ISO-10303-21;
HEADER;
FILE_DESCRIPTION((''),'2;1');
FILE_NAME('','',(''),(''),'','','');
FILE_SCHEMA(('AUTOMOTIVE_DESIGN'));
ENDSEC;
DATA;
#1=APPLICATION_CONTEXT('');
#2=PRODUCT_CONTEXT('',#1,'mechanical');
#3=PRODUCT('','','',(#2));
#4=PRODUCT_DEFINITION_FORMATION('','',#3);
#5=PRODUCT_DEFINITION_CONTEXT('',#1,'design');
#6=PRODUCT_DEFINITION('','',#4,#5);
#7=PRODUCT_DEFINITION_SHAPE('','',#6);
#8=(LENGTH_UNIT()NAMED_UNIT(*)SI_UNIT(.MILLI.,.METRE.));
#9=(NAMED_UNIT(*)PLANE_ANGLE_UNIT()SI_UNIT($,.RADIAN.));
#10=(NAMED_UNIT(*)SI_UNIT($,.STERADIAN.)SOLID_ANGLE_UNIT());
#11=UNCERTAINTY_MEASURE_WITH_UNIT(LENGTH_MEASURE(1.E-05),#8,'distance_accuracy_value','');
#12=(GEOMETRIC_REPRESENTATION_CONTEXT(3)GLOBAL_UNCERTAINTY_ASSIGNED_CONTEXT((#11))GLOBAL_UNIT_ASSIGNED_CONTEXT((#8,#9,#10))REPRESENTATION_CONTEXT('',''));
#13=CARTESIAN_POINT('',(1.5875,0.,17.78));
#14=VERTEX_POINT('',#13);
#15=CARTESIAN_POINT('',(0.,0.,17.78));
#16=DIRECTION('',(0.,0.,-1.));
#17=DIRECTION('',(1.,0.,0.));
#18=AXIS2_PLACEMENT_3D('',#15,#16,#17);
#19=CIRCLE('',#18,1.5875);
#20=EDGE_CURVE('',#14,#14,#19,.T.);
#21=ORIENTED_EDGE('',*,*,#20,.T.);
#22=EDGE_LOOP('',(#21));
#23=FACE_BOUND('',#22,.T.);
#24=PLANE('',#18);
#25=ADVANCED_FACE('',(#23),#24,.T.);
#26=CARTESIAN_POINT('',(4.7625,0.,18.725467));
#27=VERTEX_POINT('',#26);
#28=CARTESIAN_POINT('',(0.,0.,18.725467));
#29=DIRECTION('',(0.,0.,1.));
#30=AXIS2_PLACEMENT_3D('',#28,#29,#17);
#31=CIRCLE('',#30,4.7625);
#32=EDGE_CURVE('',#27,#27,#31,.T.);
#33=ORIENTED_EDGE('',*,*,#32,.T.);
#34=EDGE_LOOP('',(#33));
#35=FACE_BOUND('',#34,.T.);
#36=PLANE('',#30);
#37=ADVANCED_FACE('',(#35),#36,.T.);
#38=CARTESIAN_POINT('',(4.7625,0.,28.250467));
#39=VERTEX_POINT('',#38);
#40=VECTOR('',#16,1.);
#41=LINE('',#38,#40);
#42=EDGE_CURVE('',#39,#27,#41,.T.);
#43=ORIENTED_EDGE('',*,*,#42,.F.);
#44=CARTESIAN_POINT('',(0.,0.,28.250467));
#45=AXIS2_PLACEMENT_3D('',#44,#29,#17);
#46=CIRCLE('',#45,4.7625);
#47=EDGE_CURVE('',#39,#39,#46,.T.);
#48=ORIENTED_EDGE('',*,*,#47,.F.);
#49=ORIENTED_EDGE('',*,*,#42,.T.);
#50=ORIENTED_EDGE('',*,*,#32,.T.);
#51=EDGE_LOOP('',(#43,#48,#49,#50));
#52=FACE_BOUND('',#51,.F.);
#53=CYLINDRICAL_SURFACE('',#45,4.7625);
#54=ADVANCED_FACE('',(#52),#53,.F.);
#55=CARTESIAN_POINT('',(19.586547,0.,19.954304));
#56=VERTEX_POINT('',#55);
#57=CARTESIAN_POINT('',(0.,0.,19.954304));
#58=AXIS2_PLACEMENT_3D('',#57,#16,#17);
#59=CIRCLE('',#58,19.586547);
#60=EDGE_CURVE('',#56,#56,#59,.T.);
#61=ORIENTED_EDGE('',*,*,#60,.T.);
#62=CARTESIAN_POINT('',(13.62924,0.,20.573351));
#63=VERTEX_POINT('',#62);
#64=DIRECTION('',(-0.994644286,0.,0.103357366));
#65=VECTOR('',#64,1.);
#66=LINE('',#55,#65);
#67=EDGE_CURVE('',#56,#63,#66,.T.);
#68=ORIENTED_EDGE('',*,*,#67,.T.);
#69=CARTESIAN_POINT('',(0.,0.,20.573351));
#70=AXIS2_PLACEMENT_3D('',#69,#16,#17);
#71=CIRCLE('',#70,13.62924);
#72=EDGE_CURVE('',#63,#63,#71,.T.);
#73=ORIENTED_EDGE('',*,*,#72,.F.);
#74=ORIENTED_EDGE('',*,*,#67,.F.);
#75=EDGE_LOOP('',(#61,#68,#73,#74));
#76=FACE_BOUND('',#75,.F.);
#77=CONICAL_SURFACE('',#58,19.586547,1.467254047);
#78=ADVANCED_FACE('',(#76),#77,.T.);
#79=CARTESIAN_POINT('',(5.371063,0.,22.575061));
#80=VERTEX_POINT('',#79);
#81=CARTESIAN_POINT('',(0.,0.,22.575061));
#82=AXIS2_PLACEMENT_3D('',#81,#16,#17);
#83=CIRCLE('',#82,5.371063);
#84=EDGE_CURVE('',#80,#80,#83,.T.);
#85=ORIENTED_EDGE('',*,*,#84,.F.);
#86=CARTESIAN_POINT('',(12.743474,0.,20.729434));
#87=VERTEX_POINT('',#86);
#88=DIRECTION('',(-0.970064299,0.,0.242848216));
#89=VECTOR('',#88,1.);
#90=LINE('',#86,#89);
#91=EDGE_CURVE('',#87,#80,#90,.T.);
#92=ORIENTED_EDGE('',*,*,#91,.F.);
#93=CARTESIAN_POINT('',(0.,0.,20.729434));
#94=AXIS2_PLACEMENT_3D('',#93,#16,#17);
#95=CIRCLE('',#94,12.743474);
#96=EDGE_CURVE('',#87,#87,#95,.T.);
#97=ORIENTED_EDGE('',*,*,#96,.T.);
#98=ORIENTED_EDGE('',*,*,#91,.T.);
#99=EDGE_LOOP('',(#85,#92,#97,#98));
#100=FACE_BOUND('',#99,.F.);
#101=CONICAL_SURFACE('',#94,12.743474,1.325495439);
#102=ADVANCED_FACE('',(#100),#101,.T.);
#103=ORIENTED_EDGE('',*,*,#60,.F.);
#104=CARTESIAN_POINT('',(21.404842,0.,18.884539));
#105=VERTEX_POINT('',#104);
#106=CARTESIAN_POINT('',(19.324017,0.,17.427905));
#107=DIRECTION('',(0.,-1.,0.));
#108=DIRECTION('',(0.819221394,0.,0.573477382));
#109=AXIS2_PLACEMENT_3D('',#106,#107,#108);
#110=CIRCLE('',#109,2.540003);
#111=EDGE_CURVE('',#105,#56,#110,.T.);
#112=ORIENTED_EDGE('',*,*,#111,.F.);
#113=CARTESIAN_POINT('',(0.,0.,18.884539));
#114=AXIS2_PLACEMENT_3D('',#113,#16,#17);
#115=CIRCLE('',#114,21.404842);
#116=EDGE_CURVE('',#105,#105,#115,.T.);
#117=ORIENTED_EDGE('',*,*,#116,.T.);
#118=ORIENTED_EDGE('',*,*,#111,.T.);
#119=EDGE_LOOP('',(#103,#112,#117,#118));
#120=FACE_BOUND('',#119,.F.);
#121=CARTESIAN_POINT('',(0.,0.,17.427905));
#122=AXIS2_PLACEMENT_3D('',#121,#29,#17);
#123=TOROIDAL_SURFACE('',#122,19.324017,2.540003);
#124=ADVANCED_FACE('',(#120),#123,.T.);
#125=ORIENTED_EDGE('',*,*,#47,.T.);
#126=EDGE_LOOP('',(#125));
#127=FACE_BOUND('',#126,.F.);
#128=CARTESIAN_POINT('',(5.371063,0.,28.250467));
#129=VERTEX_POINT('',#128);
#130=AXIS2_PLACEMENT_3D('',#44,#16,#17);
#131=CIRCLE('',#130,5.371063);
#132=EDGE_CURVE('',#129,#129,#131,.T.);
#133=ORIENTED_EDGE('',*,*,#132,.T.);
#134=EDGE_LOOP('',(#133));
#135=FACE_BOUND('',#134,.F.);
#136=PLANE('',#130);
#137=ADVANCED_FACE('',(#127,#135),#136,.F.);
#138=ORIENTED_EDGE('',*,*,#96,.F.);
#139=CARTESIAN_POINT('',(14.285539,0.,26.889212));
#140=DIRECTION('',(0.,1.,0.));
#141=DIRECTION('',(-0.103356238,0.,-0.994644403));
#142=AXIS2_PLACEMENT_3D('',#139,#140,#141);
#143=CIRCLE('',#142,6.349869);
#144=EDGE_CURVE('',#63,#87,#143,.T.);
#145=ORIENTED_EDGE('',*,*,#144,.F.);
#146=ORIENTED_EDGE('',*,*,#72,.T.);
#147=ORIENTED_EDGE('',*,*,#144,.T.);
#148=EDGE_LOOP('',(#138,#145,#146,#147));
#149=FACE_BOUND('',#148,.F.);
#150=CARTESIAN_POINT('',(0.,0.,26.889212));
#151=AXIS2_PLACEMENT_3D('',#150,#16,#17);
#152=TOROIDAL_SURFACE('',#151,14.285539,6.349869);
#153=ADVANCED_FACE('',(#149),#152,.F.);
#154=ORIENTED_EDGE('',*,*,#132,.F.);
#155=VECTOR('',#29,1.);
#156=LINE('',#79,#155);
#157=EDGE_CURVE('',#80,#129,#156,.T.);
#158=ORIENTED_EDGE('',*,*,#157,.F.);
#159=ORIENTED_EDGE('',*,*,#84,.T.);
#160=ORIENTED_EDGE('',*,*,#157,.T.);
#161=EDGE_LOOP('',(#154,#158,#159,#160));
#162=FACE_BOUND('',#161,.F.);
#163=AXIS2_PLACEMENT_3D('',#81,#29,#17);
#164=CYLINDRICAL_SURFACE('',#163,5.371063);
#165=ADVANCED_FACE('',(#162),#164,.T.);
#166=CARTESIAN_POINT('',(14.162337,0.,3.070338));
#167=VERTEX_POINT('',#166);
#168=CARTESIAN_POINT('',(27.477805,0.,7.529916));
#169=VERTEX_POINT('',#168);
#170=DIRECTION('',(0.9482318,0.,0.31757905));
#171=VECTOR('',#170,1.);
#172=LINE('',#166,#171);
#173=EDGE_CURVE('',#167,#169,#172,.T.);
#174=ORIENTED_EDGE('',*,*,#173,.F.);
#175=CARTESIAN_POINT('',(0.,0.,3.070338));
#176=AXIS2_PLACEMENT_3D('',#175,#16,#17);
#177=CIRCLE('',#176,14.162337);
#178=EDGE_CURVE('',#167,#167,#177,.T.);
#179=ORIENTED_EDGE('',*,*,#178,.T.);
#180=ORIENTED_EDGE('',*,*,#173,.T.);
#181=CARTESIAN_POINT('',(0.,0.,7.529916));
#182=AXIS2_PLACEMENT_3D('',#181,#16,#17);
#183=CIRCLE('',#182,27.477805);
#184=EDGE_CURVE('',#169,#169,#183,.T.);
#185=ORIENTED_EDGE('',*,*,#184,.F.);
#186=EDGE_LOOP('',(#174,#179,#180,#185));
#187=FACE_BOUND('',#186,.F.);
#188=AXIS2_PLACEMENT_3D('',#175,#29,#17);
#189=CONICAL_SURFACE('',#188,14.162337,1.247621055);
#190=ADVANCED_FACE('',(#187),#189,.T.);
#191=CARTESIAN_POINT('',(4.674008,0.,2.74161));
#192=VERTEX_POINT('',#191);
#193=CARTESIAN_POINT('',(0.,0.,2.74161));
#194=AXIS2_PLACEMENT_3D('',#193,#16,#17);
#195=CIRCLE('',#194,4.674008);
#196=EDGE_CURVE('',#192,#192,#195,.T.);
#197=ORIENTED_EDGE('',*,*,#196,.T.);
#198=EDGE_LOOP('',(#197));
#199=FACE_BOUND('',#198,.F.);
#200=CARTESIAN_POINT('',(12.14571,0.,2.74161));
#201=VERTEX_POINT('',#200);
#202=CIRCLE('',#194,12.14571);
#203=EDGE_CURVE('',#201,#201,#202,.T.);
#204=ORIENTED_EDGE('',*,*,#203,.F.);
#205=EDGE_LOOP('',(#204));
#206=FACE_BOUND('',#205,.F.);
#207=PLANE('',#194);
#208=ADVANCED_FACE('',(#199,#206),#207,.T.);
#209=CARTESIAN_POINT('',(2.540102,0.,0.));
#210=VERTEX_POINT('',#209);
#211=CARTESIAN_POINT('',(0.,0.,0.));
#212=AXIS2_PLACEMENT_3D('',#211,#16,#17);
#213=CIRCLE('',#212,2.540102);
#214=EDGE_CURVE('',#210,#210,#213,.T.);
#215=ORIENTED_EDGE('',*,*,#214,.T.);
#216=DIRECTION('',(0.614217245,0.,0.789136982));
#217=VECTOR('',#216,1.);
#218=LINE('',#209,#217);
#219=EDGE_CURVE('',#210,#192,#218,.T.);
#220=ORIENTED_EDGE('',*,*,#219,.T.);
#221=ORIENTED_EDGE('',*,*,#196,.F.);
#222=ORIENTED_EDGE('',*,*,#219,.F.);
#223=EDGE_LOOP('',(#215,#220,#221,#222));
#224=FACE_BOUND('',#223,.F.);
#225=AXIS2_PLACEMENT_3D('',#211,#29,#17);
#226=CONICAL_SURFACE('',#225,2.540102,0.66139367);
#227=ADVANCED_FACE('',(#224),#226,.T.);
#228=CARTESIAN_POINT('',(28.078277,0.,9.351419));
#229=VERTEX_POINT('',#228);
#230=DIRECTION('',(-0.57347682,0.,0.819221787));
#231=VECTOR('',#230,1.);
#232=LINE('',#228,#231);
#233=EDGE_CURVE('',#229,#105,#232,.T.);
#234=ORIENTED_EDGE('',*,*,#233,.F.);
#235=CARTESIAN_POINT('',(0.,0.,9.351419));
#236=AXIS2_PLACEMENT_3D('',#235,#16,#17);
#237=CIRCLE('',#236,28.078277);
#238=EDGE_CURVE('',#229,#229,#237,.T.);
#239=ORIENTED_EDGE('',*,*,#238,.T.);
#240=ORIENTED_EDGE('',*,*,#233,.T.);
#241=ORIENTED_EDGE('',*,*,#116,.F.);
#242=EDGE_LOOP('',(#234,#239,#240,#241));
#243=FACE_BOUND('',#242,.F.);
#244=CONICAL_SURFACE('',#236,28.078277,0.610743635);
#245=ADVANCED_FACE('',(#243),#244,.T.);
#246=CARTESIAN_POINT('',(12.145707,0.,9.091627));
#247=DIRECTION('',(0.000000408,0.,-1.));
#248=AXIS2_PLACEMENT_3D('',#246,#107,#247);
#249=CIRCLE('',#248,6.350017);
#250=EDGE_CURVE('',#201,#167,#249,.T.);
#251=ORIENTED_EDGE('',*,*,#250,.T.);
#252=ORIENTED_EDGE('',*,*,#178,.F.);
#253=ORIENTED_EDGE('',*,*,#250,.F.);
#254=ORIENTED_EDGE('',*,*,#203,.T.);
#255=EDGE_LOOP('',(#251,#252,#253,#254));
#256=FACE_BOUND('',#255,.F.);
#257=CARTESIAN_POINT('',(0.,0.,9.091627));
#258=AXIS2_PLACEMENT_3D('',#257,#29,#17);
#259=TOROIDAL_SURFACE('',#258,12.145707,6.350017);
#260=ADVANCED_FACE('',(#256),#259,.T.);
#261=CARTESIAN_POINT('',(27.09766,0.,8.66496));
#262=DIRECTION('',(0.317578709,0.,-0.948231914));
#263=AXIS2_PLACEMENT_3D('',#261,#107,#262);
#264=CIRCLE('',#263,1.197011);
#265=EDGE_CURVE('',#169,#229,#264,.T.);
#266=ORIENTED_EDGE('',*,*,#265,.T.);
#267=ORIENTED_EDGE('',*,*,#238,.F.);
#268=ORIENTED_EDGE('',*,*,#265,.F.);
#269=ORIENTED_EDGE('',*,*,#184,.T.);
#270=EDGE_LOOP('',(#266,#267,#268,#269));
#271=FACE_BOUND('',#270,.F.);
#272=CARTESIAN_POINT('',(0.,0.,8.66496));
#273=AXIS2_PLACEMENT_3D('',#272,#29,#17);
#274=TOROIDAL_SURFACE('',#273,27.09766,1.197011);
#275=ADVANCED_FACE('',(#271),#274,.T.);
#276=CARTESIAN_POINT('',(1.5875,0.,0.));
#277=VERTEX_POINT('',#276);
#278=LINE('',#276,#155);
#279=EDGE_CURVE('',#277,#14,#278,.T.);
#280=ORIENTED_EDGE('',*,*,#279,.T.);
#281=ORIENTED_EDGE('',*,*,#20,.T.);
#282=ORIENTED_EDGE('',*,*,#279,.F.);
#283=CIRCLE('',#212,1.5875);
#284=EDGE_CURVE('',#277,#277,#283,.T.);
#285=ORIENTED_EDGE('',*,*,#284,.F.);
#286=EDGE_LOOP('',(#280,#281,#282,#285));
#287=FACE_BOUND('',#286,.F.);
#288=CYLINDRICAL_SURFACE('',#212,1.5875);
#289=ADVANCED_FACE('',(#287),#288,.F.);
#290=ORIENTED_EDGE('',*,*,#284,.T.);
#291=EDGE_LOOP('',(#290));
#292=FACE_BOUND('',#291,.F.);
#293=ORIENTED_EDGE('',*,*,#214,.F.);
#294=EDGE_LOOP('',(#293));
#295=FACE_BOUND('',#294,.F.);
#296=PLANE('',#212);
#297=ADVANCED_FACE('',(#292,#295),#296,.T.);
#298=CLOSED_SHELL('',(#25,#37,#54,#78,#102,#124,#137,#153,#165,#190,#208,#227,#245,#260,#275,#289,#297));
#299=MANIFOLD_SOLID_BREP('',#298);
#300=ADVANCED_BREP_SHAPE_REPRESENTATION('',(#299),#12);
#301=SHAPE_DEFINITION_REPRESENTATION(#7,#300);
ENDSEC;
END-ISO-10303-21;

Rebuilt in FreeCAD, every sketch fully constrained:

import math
import FreeCAD as App
import Part
import Sketcher
Q = App.Units.Quantity

doc = App.newDocument("Part")
body = doc.addObject("PartDesign::Body", "Body")

# Sketch on XZ plane
sketch1 = doc.addObject("Sketcher::SketchObject", "Sketch")
body.addObject(sketch1)
sketch1.AttachmentSupport = (doc.XZ_Plane, [""])
sketch1.MapMode = "FlatFace"
sketch1.addGeometry([
    Part.LineSegment(App.Vector(12.7, 20.7, 0), App.Vector(5.4, 22.6, 0)),  # 0
    Part.LineSegment(App.Vector(5.4, 22.6, 0), App.Vector(5.4, 28.3, 0)),  # 1
    Part.LineSegment(App.Vector(5.4, 28.3, 0), App.Vector(0, 28.3, 0)),  # 2
    Part.LineSegment(App.Vector(0, 28.3, 0), App.Vector(0, 0, 0)),  # 3
    Part.LineSegment(App.Vector(0, 0, 0), App.Vector(2.5, 0, 0)),  # 4
    Part.LineSegment(App.Vector(2.5, 0, 0), App.Vector(4.7, 2.7, 0)),  # 5
    Part.LineSegment(App.Vector(4.7, 2.7, 0), App.Vector(12.1, 2.7, 0)),  # 6
    Part.ArcOfCircle(Part.Circle(App.Vector(12.1, 9.1, 0), App.Vector(0, 0, 1), 6.4), math.radians(-90), math.radians(-71.48)),  # 7
    Part.LineSegment(App.Vector(14.2, 3.1, 0), App.Vector(27.5, 7.5, 0)),  # 8
    Part.ArcOfCircle(Part.Circle(App.Vector(27.1, 8.7, 0), App.Vector(0, 0, 1), 1.2), math.radians(-71), math.radians(35)),  # 9
    Part.LineSegment(App.Vector(28.1, 9.4, 0), App.Vector(21.4, 18.9, 0)),  # 10
    Part.ArcOfCircle(Part.Circle(App.Vector(19.3, 17.4, 0), App.Vector(0, 0, 1), 2.5), math.radians(35), math.radians(84)),  # 11
    Part.LineSegment(App.Vector(19.6, 20, 0), App.Vector(13.6, 20.6, 0)),  # 12
    Part.ArcOfCircle(Part.Circle(App.Vector(14.3, 26.9, 0), App.Vector(0, 0, 1), 6.3), math.radians(-104.05), math.radians(-95.93)),  # 13
], False)
sketch1.addConstraint([
    Sketcher.Constraint("Coincident", 0, 2, 1, 1),
    Sketcher.Constraint("Coincident", 1, 2, 2, 1),
    Sketcher.Constraint("Coincident", 2, 2, 3, 1),
    Sketcher.Constraint("Coincident", 3, 2, 4, 1),
    Sketcher.Constraint("Coincident", 4, 2, 5, 1),
    Sketcher.Constraint("Coincident", 5, 2, 6, 1),
    Sketcher.Constraint("Tangent", 6, 2, 7, 1),
    Sketcher.Constraint("Tangent", 7, 2, 8, 1),
    Sketcher.Constraint("Tangent", 8, 2, 9, 1),
    Sketcher.Constraint("Tangent", 9, 2, 10, 1),
    Sketcher.Constraint("Tangent", 10, 2, 11, 1),
    Sketcher.Constraint("Tangent", 11, 2, 12, 1),
    Sketcher.Constraint("Tangent", 12, 2, 13, 2),
    Sketcher.Constraint("Tangent", 13, 1, 0, 1),
    Sketcher.Constraint("Vertical", 1),
    Sketcher.Constraint("Horizontal", 2),
    Sketcher.Constraint("Vertical", 3),
    Sketcher.Constraint("Horizontal", 4),
    Sketcher.Constraint("Horizontal", 6),
    Sketcher.Constraint("Coincident", 3, 2, -1, 1),
    Sketcher.Constraint("Radius", 11, Q("0.1000001 in")),
    Sketcher.Constraint("Radius", 9, Q("1.197011 mm")),
    Sketcher.Constraint("Radius", 13, Q("6.349869 mm")),
    Sketcher.Constraint("DistanceX", 6, 1, 6, 2, Q("7.471702 mm")),
    Sketcher.Constraint("Radius", 7, Q("6.350017 mm")),
    Sketcher.Constraint("DistanceY", 7, 3, 11, 3, Q("0.3281999 in")),
    Sketcher.Constraint("Distance", 10, Q("11.6368 mm")),
    Sketcher.Constraint("DistanceY", 9, 3, 0, 2, Q("13.910101 mm")),
    Sketcher.Constraint("DistanceY", 11, 3, 11, 2, Q("2.526399 mm")),
    Sketcher.Constraint("DistanceX", 12, 2, 10, 2, Q("7.775602 mm")),
    Sketcher.Constraint("Distance", 0, Q("7.59992 mm")),
    Sketcher.Constraint("Distance", 8, Q("14.042419 mm")),
    Sketcher.Constraint("DistanceX", 2, 2, 2, 1, Q("5.371063 mm")),
    Sketcher.Constraint("DistanceX", 4, 1, 4, 2, Q("2.540102 mm")),
    Sketcher.Constraint("DistanceY", 1, 1, 1, 2, Q("5.675406 mm")),
    Sketcher.Constraint("DistanceY", 3, 2, 3, 1, Q("28.250467 mm")),
    Sketcher.Constraint("DistanceX", -1, 1, 9, 3, Q("27.09766 mm")),
])
revolution = doc.addObject("PartDesign::Revolution", "Revolution")
body.addObject(revolution)
revolution.Profile = sketch1
revolution.ReferenceAxis = (sketch1, ["V_Axis"])
revolution.Angle = 360

# Sketch on XY plane
sketch2 = doc.addObject("Sketcher::SketchObject", "Sketch001")
body.addObject(sketch2)
sketch2.AttachmentSupport = (doc.XY_Plane, [""])
sketch2.MapMode = "FlatFace"
sketch2.AttachmentOffset = App.Placement(App.Vector(0, 0, 28.250467), App.Rotation())
sketch2.addGeometry(Part.Circle(App.Vector(0, 0, 0), App.Vector(0, 0, 1), 4.8), False)
sketch2.addConstraint([
    Sketcher.Constraint("Coincident", 0, 3, -1, 1),
    Sketcher.Constraint("Diameter", 0, Q("0.375 in")),
])
pocket1 = doc.addObject("PartDesign::Pocket", "Pocket")
body.addObject(pocket1)
pocket1.Profile = sketch2
pocket1.Length = Q("0.375 in")

# Sketch on XY plane
sketch3 = doc.addObject("Sketcher::SketchObject", "Sketch002")
body.addObject(sketch3)
sketch3.AttachmentSupport = (doc.XY_Plane, [""])
sketch3.MapMode = "FlatFace"
sketch3.addGeometry(Part.Circle(App.Vector(0, 0, 0), App.Vector(0, 0, 1), 1.6), False)
sketch3.addConstraint([
    Sketcher.Constraint("Coincident", 0, 3, -1, 1),
    Sketcher.Constraint("Diameter", 0, Q("0.125 in")),
])
pocket2 = doc.addObject("PartDesign::Pocket", "Pocket001")
body.addObject(pocket2)
pocket2.Profile = sketch3
pocket2.Length = Q("0.7 in")
pocket2.Reversed = True

doc.recompute()
